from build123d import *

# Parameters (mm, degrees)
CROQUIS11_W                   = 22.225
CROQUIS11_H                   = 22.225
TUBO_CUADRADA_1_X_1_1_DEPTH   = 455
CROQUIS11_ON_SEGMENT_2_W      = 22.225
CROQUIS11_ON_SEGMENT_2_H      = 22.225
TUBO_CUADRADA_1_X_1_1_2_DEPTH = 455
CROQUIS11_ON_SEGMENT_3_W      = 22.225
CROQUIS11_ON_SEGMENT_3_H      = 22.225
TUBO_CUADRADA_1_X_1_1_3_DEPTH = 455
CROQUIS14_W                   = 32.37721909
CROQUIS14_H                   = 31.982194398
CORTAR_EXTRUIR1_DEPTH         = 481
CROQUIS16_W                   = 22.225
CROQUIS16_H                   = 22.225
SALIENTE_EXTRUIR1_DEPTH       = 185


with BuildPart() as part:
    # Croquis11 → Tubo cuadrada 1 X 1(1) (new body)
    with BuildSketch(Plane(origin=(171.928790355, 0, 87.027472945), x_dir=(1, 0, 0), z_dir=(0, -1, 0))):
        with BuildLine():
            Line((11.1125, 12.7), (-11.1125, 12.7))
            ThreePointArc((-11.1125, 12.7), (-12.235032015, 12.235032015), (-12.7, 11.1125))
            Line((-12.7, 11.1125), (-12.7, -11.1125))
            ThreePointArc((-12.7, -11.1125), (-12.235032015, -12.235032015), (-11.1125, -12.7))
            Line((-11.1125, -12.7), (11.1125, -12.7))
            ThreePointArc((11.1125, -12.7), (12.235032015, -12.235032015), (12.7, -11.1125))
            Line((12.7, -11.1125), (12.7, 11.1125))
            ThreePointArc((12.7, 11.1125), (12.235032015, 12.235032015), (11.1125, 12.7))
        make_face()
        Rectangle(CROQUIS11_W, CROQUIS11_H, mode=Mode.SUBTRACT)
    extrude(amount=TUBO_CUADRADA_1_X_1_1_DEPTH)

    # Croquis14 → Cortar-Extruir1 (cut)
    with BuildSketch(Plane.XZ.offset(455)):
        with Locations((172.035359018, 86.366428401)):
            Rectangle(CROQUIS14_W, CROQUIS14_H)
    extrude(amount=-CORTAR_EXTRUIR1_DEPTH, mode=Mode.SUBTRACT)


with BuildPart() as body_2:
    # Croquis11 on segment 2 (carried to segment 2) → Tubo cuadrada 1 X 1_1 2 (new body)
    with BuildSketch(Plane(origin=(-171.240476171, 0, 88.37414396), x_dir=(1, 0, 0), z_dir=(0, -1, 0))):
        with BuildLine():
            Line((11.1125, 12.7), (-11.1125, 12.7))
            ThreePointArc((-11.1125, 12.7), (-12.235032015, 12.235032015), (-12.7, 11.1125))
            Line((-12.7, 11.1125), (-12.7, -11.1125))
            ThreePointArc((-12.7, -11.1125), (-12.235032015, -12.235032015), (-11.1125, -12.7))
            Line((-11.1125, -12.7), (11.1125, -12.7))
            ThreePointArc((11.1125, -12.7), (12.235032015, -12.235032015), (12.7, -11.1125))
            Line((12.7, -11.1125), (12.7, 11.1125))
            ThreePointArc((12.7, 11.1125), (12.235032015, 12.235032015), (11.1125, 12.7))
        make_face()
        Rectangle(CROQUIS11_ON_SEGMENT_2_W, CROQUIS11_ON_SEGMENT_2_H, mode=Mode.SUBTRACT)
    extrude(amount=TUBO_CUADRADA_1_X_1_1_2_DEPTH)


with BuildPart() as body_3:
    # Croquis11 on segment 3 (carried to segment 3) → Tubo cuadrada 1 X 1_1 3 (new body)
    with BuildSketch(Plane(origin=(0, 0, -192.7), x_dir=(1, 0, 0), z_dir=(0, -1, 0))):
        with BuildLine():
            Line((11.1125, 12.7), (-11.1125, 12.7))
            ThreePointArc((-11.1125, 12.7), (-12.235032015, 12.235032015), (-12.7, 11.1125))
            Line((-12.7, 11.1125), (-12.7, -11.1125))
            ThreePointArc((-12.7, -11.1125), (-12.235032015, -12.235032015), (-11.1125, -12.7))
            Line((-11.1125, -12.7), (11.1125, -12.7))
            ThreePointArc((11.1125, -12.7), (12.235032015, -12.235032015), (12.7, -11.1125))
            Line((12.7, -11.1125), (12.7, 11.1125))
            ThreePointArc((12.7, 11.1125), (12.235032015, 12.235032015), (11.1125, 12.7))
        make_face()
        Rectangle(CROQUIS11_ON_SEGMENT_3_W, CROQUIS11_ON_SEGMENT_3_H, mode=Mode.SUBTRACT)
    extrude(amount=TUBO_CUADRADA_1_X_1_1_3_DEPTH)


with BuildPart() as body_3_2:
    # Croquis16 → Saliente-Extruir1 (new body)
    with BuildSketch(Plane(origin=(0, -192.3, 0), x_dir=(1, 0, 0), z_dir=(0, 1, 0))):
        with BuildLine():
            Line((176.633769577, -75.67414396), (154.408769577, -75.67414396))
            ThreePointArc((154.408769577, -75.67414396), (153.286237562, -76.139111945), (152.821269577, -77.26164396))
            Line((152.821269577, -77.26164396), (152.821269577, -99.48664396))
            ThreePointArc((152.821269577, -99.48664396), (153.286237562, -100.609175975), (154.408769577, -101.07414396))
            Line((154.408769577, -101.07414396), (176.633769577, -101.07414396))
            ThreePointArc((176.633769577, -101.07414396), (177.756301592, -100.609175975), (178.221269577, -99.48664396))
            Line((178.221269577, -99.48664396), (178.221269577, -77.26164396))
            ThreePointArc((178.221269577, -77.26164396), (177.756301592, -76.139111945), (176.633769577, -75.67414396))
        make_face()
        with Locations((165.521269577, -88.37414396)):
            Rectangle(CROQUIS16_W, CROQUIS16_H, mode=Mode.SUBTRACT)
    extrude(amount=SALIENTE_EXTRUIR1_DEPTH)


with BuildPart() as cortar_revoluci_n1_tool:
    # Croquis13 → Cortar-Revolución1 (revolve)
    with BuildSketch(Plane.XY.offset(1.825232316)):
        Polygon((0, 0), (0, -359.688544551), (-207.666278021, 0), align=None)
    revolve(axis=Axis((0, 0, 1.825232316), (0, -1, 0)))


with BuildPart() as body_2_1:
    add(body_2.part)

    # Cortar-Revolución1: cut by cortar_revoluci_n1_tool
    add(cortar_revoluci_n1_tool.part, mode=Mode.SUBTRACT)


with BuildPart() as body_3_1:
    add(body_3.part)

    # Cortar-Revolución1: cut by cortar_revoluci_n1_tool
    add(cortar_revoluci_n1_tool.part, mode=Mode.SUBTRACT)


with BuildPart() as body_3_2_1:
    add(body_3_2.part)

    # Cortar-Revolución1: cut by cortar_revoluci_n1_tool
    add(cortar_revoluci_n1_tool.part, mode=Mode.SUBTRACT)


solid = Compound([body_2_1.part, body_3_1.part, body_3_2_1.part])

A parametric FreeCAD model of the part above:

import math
import FreeCAD as App
import Part
import Sketcher
from FreeCAD import Vector
Q = App.Units.Quantity


def add_polygon(sketch, points):
    """Adds a closed chain of lines whose ends are joined by coincident constraints."""
    first, n = sketch.GeometryCount, len(points)
    for a, b in zip(points, points[1:] + points[:1]):
        sketch.addGeometry(Part.LineSegment(App.Vector(*a, 0), App.Vector(*b, 0)), False)
    for i in range(n):
        sketch.addConstraint(Sketcher.Constraint("Coincident", first + i, 2, first + (i + 1) % n, 1))

doc = App.newDocument("Part")
body = doc.addObject("PartDesign::Body", "Body")

# Sketch on XZ plane
sketch1 = body.newObject("Sketcher::SketchObject", "Sketch")
sketch1.AttachmentSupport = (doc.getObject("XZ_Plane"), [""])
sketch1.MapMode = "FlatFace"
sketch1.addGeometry(Part.LineSegment(Vector(183, 99.7, 0), Vector(160.8, 99.7, 0)), False)  # 0
sketch1.addGeometry(Part.ArcOfCircle(Part.Circle(Vector(160.8, 98.1, 0), Vector(0, 0, 1), 1.6), math.radians(90), math.radians(180)), False)  # 1
sketch1.addGeometry(Part.LineSegment(Vector(159.2, 98.1, 0), Vector(159.2, 75.9, 0)), False)  # 2
sketch1.addGeometry(Part.ArcOfCircle(Part.Circle(Vector(160.8, 75.9, 0), Vector(0, 0, 1), 1.6), math.radians(180), math.radians(270)), False)  # 3
sketch1.addGeometry(Part.LineSegment(Vector(160.8, 74.3, 0), Vector(183, 74.3, 0)), False)  # 4
sketch1.addGeometry(Part.ArcOfCircle(Part.Circle(Vector(183, 75.9, 0), Vector(0, 0, 1), 1.6), math.radians(-90), math.radians(0)), False)  # 5
sketch1.addGeometry(Part.LineSegment(Vector(184.6, 75.9, 0), Vector(184.6, 98.1, 0)), False)  # 6
sketch1.addGeometry(Part.ArcOfCircle(Part.Circle(Vector(183, 98.1, 0), Vector(0, 0, 1), 1.6), math.radians(0), math.radians(90)), False)  # 7
add_polygon(sketch1, [(183, 75.9), (160.8, 75.9), (160.8, 98.1), (183, 98.1)])  # lines 8-11
sketch1.addConstraint([
    Sketcher.Constraint("Tangent", 0, 2, 1, 1),
    Sketcher.Constraint("Tangent", 1, 2, 2, 1),
    Sketcher.Constraint("Tangent", 2, 2, 3, 1),
    Sketcher.Constraint("Tangent", 3, 2, 4, 1),
    Sketcher.Constraint("Tangent", 4, 2, 5, 1),
    Sketcher.Constraint("Tangent", 5, 2, 6, 1),
    Sketcher.Constraint("Tangent", 6, 2, 7, 1),
    Sketcher.Constraint("Tangent", 7, 2, 0, 1),
    Sketcher.Constraint("Horizontal", 0),
    Sketcher.Constraint("Vertical", 2),
    Sketcher.Constraint("Horizontal", 4),
    Sketcher.Constraint("Vertical", 6),
    Sketcher.Constraint("Horizontal", 8),
    Sketcher.Constraint("Vertical", 9),
    Sketcher.Constraint("Horizontal", 10),
    Sketcher.Constraint("Vertical", 11),
    Sketcher.Constraint("Coincident", 8, 2, 3, 3),
    Sketcher.Constraint("Coincident", 9, 2, 1, 3),
    Sketcher.Constraint("Coincident", 10, 2, 7, 3),
    Sketcher.Constraint("Equal", 3, 5),
    Sketcher.Constraint("Equal", 10, 2),
    Sketcher.Constraint("Radius", 1, 1.5875),
    Sketcher.Constraint("DistanceX", 0, 2, 0, 1, 22.225),
    Sketcher.Constraint("DistanceX", -1, 1, 1, 3, 160.81629),
    Sketcher.Constraint("DistanceY", -1, 1, 1, 3, 98.139973),
])
pad1 = body.newObject("PartDesign::Pad", "Pad")
pad1.Profile = sketch1
pad1.Length = 455

# Sketch on XZ plane
sketch2 = body.newObject("Sketcher::SketchObject", "Sketch001")
sketch2.AttachmentSupport = (doc.getObject("XZ_Plane"), [""])
sketch2.MapMode = "FlatFace"
sketch2.AttachmentOffset = App.Placement(Vector(0, 0, 455), App.Rotation())
add_polygon(sketch2, [(156, 102), (156, 70), (188, 70), (188, 102)])  # lines 0-3
sketch2.addConstraint([
    Sketcher.Constraint("Vertical", 0),
    Sketcher.Constraint("Horizontal", 1),
    Sketcher.Constraint("Vertical", 2),
    Sketcher.Constraint("Horizontal", 3),
    Sketcher.Constraint("DistanceX", 1, 1, 1, 2, 32.377219),
    Sketcher.Constraint("DistanceY", 0, 2, 0, 1, 31.982194),
    Sketcher.Constraint("DistanceX", -1, 1, 0, 2, 155.846749),
    Sketcher.Constraint("DistanceY", -1, 1, 0, 2, 70.375331),
])
pocket1 = body.newObject("PartDesign::Pocket", "Pocket")
pocket1.Profile = sketch2
pocket1.Length = 481
body2 = doc.addObject("PartDesign::Body", "Body001")

# Sketch on XZ plane
sketch3 = body2.newObject("Sketcher::SketchObject", "Sketch002")
sketch3.AttachmentSupport = (doc.getObject("XZ_Plane001"), [""])
sketch3.MapMode = "FlatFace"
sketch3.addGeometry(Part.LineSegment(Vector(-160.1, 101.1, 0), Vector(-182.4, 101.1, 0)), False)  # 0
sketch3.addGeometry(Part.ArcOfCircle(Part.Circle(Vector(-182.4, 99.5, 0), Vector(0, 0, 1), 1.6), math.radians(90), math.radians(180)), False)  # 1
sketch3.addGeometry(Part.LineSegment(Vector(-183.9, 99.5, 0), Vector(-183.9, 77.3, 0)), False)  # 2
sketch3.addGeometry(Part.ArcOfCircle(Part.Circle(Vector(-182.4, 77.3, 0), Vector(0, 0, 1), 1.6), math.radians(180), math.radians(270)), False)  # 3
sketch3.addGeometry(Part.LineSegment(Vector(-182.4, 75.7, 0), Vector(-160.1, 75.7, 0)), False)  # 4
sketch3.addGeometry(Part.ArcOfCircle(Part.Circle(Vector(-160.1, 77.3, 0), Vector(0, 0, 1), 1.6), math.radians(-90), math.radians(0)), False)  # 5
sketch3.addGeometry(Part.LineSegment(Vector(-158.5, 77.3, 0), Vector(-158.5, 99.5, 0)), False)  # 6
sketch3.addGeometry(Part.ArcOfCircle(Part.Circle(Vector(-160.1, 99.5, 0), Vector(0, 0, 1), 1.6), math.radians(0), math.radians(90)), False)  # 7
add_polygon(sketch3, [(-160.1, 77.3), (-182.4, 77.3), (-182.4, 99.5), (-160.1, 99.5)])  # lines 8-11
sketch3.addConstraint([
    Sketcher.Constraint("Tangent", 0, 2, 1, 1),
    Sketcher.Constraint("Tangent", 1, 2, 2, 1),
    Sketcher.Constraint("Tangent", 2, 2, 3, 1),
    Sketcher.Constraint("Tangent", 3, 2, 4, 1),
    Sketcher.Constraint("Tangent", 4, 2, 5, 1),
    Sketcher.Constraint("Tangent", 5, 2, 6, 1),
    Sketcher.Constraint("Tangent", 6, 2, 7, 1),
    Sketcher.Constraint("Tangent", 7, 2, 0, 1),
    Sketcher.Constraint("Horizontal", 0),
    Sketcher.Constraint("Vertical", 2),
    Sketcher.Constraint("Horizontal", 4),
    Sketcher.Constraint("Vertical", 6),
    Sketcher.Constraint("Horizontal", 8),
    Sketcher.Constraint("Vertical", 9),
    Sketcher.Constraint("Horizontal", 10),
    Sketcher.Constraint("Vertical", 11),
    Sketcher.Constraint("Coincident", 8, 2, 3, 3),
    Sketcher.Constraint("Coincident", 9, 2, 1, 3),
    Sketcher.Constraint("Coincident", 10, 2, 7, 3),
    Sketcher.Constraint("Equal", 3, 5),
    Sketcher.Constraint("Equal", 10, 2),
    Sketcher.Constraint("Radius", 1, 1.5875),
    Sketcher.Constraint("DistanceX", 0, 2, 0, 1, 22.225),
    Sketcher.Constraint("DistanceX", 1, 3, -1, 1, 182.352976),
    Sketcher.Constraint("DistanceY", -1, 1, 1, 3, 99.486644),
])
pad2 = body2.newObject("PartDesign::Pad", "Pad001")
pad2.Profile = sketch3
pad2.Length = 455
body3 = doc.addObject("PartDesign::Body", "Body002")

# Sketch on XZ plane
sketch4 = body3.newObject("Sketcher::SketchObject", "Sketch003")
sketch4.AttachmentSupport = (doc.getObject("XZ_Plane002"), [""])
sketch4.MapMode = "FlatFace"
sketch4.addGeometry(Part.LineSegment(Vector(11.1, -180, 0), Vector(-11.1, -180, 0)), False)  # 0
sketch4.addGeometry(Part.ArcOfCircle(Part.Circle(Vector(-11.1, -181.6, 0), Vector(0, 0, 1), 1.6), math.radians(90), math.radians(180)), False)  # 1
sketch4.addGeometry(Part.LineSegment(Vector(-12.7, -181.6, 0), Vector(-12.7, -203.8, 0)), False)  # 2
sketch4.addGeometry(Part.ArcOfCircle(Part.Circle(Vector(-11.1, -203.8, 0), Vector(0, 0, 1), 1.6), math.radians(180), math.radians(270)), False)  # 3
sketch4.addGeometry(Part.LineSegment(Vector(-11.1, -205.4, 0), Vector(11.1, -205.4, 0)), False)  # 4
sketch4.addGeometry(Part.ArcOfCircle(Part.Circle(Vector(11.1, -203.8, 0), Vector(0, 0, 1), 1.6), math.radians(-90), math.radians(0)), False)  # 5
sketch4.addGeometry(Part.LineSegment(Vector(12.7, -203.8, 0), Vector(12.7, -181.6, 0)), False)  # 6
sketch4.addGeometry(Part.ArcOfCircle(Part.Circle(Vector(11.1, -181.6, 0), Vector(0, 0, 1), 1.6), math.radians(0), math.radians(90)), False)  # 7
add_polygon(sketch4, [(11.1, -203.8), (-11.1, -203.8), (-11.1, -181.6), (11.1, -181.6)])  # lines 8-11
sketch4.addConstraint([
    Sketcher.Constraint("Tangent", 0, 2, 1, 1),
    Sketcher.Constraint("Tangent", 1, 2, 2, 1),
    Sketcher.Constraint("Tangent", 2, 2, 3, 1),
    Sketcher.Constraint("Tangent", 3, 2, 4, 1),
    Sketcher.Constraint("Tangent", 4, 2, 5, 1),
    Sketcher.Constraint("Tangent", 5, 2, 6, 1),
    Sketcher.Constraint("Tangent", 6, 2, 7, 1),
    Sketcher.Constraint("Tangent", 7, 2, 0, 1),
    Sketcher.Constraint("Horizontal", 0),
    Sketcher.Constraint("Vertical", 2),
    Sketcher.Constraint("Horizontal", 4),
    Sketcher.Constraint("Vertical", 6),
    Sketcher.Constraint("Horizontal", 8),
    Sketcher.Constraint("Vertical", 9),
    Sketcher.Constraint("Horizontal", 10),
    Sketcher.Constraint("Vertical", 11),
    Sketcher.Constraint("Coincident", 8, 2, 3, 3),
    Sketcher.Constraint("Coincident", 9, 2, 1, 3),
    Sketcher.Constraint("Coincident", 10, 2, 7, 3),
    Sketcher.Constraint("Equal", 3, 5),
    Sketcher.Constraint("Equal", 10, 2),
    Sketcher.Constraint("DistanceY", 0, 2, -1, 1, 180.0),
    Sketcher.Constraint("DistanceX", 1, 2, -1, 1, 12.7),
    Sketcher.Constraint("DistanceY", 3, 2, -1, 1, 205.4),
    Sketcher.Constraint("Radius", 1, 1.5875),
])
pad3 = body3.newObject("PartDesign::Pad", "Pad002")
pad3.Profile = sketch4
pad3.Length = 455
body4 = doc.addObject("PartDesign::Body", "Body003")

# Sketch on XZ plane
sketch5 = body4.newObject("Sketcher::SketchObject", "Sketch004")
sketch5.AttachmentSupport = (doc.getObject("XZ_Plane003"), [""])
sketch5.MapMode = "FlatFace"
sketch5.AttachmentOffset = App.Placement(Vector(0, 0, 192.3), App.Rotation())
sketch5.addGeometry(Part.LineSegment(Vector(176.6, 75.7, 0), Vector(154.4, 75.7, 0)), False)  # 0
sketch5.addGeometry(Part.ArcOfCircle(Part.Circle(Vector(154.4, 77.3, 0), Vector(0, 0, 1), 1.6), math.radians(180), math.radians(270)), False)  # 1
sketch5.addGeometry(Part.LineSegment(Vector(152.8, 77.3, 0), Vector(152.8, 99.5, 0)), False)  # 2
sketch5.addGeometry(Part.ArcOfCircle(Part.Circle(Vector(154.4, 99.5, 0), Vector(0, 0, 1), 1.6), math.radians(90), math.radians(180)), False)  # 3
sketch5.addGeometry(Part.LineSegment(Vector(154.4, 101.1, 0), Vector(176.6, 101.1, 0)), False)  # 4
sketch5.addGeometry(Part.ArcOfCircle(Part.Circle(Vector(176.6, 99.5, 0), Vector(0, 0, 1), 1.6), math.radians(0), math.radians(90)), False)  # 5
sketch5.addGeometry(Part.LineSegment(Vector(178.2, 99.5, 0), Vector(178.2, 77.3, 0)), False)  # 6
sketch5.addGeometry(Part.ArcOfCircle(Part.Circle(Vector(176.6, 77.3, 0), Vector(0, 0, 1), 1.6), math.radians(-90), math.radians(0)), False)  # 7
add_polygon(sketch5, [(176.6, 99.5), (154.4, 99.5), (154.4, 77.3), (176.6, 77.3)])  # lines 8-11
sketch5.addConstraint([
    Sketcher.Constraint("Tangent", 0, 2, 1, 2),
    Sketcher.Constraint("Tangent", 1, 1, 2, 1),
    Sketcher.Constraint("Tangent", 2, 2, 3, 2),
    Sketcher.Constraint("Tangent", 3, 1, 4, 1),
    Sketcher.Constraint("Tangent", 4, 2, 5, 2),
    Sketcher.Constraint("Tangent", 5, 1, 6, 1),
    Sketcher.Constraint("Tangent", 6, 2, 7, 2),
    Sketcher.Constraint("Tangent", 7, 1, 0, 1),
    Sketcher.Constraint("Horizontal", 0),
    Sketcher.Constraint("Vertical", 2),
    Sketcher.Constraint("Horizontal", 4),
    Sketcher.Constraint("Vertical", 6),
    Sketcher.Constraint("Horizontal", 8),
    Sketcher.Constraint("Vertical", 9),
    Sketcher.Constraint("Horizontal", 10),
    Sketcher.Constraint("Vertical", 11),
    Sketcher.Constraint("Coincident", 8, 2, 3, 3),
    Sketcher.Constraint("Coincident", 9, 2, 1, 3),
    Sketcher.Constraint("Coincident", 10, 2, 7, 3),
    Sketcher.Constraint("Equal", 3, 5),
    Sketcher.Constraint("Equal", 10, 2),
    Sketcher.Constraint("Radius", 1, 1.5875),
    Sketcher.Constraint("DistanceX", 0, 2, 0, 1, 22.225),
    Sketcher.Constraint("DistanceX", -1, 1, 1, 3, 154.40877),
    Sketcher.Constraint("DistanceY", -1, 1, 1, 3, 77.261644),
])
pad4 = body4.newObject("PartDesign::Pad", "Pad003")
pad4.Profile = sketch5
pad4.Length = 185
pad4.Reversed = True
body5 = doc.addObject("PartDesign::Body", "Body004")

# Sketch on XY plane
sketch6 = body5.newObject("Sketcher::SketchObject", "Sketch005")
sketch6.AttachmentSupport = (doc.getObject("XY_Plane004"), [""])
sketch6.MapMode = "FlatFace"
sketch6.AttachmentOffset = App.Placement(Vector(0, 0, 1.825232), App.Rotation())
add_polygon(sketch6, [(0, -360), (0, 0), (-208, 0)])  # lines 0-2
sketch6.addConstraint([
    Sketcher.Constraint("Vertical", 0),
    Sketcher.Constraint("Horizontal", 1),
    Sketcher.Constraint("Coincident", 0, 2, -1, 1),
    Sketcher.Constraint("Angle", 2, Q("-60 deg")),
    Sketcher.Constraint("DistanceX", 1, 2, 1, 1, 207.666278),
])
revolution = body5.newObject("PartDesign::Revolution", "Revolution")
revolution.Profile = sketch6
revolution.ReferenceAxis = (sketch6, ["V_Axis"])
revolution.Angle = 360
doc.recompute()

body6 = doc.addObject("PartDesign::Body", "Body005")
body6.BaseFeature = body5
boolean = body2.newObject("PartDesign::Boolean", "Boolean")
boolean.Type = "Cut"
boolean.addObjects([body6])
doc.recompute()

body7 = doc.addObject("PartDesign::Body", "Body006")
body7.BaseFeature = body5
boolean2 = body3.newObject("PartDesign::Boolean", "Boolean001")
boolean2.Type = "Cut"
boolean2.addObjects([body7])
doc.recompute()

boolean3 = body4.newObject("PartDesign::Boolean", "Boolean002")
boolean3.Type = "Cut"
boolean3.addObjects([body5])

doc.recompute()
